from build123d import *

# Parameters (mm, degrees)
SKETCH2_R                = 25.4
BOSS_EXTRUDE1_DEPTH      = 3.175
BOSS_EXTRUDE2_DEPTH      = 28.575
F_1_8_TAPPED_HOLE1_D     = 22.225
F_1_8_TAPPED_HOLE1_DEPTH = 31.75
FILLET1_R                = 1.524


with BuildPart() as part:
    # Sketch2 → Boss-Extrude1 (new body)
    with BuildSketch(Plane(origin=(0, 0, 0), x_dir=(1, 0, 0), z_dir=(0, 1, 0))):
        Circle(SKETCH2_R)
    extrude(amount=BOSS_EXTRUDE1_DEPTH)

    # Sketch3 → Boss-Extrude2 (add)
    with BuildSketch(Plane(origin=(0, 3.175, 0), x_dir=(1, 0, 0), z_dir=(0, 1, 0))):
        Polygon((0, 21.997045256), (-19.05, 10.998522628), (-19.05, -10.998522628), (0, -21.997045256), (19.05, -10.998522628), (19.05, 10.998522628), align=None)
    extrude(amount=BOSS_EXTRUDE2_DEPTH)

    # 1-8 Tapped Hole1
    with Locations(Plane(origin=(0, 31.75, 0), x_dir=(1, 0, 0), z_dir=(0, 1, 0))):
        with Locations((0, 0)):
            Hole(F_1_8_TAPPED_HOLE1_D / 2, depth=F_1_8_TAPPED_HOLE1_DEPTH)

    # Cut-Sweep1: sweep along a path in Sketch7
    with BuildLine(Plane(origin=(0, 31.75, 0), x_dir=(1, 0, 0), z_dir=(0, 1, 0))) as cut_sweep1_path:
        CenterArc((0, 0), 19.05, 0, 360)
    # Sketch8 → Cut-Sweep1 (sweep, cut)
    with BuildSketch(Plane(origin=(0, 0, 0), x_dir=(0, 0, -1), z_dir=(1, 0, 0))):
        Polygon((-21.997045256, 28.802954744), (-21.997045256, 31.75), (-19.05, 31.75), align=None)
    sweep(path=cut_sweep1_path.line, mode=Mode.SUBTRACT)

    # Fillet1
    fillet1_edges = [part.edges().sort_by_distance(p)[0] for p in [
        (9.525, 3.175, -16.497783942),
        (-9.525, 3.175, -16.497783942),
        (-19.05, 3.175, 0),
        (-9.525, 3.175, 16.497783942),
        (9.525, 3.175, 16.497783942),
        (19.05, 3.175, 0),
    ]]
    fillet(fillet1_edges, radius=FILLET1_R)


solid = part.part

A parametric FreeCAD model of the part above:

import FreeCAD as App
import Part
import Sketcher
from FreeCAD import Vector
Q = App.Units.Quantity


def edges_at(feature, points):
    """Names of the edges that pass closest to the given points."""
    edges = feature.Shape.Edges
    near = lambda p: min(range(len(edges)), key=lambda i: edges[i].distToShape(Part.Vertex(*p))[0])
    return sorted({f"Edge{near(p) + 1}" for p in points})

doc = App.newDocument("Part")
params = doc.addObject("Spreadsheet::Sheet", "Params")
for row, (alias, value) in enumerate([
    ("sketch1_diameter", "2 in"),
    ("pad1_length", "0.125 in"),
    ("pad2_length", "1.125 in"),
    ("sketch3_diameter", "0.875 in"),
    ("hole_diameter", "0.875 in"),
    ("hole_depth", "1.25 in"),
    ("sketch5_diameter", "1.5 in"),
    ("fillet_radius", "0.06 in"),
], start=1):
    params.set(f"A{row}", alias)
    params.set(f"B{row}", "=" + value)
    params.setAlias(f"B{row}", alias)

body = doc.addObject("PartDesign::Body", "Body")

# Sketch on XZ plane
sketch1 = body.newObject("Sketcher::SketchObject", "Sketch")
sketch1.AttachmentSupport = (doc.getObject("XZ_Plane"), [""])
sketch1.MapMode = "FlatFace"
sketch1.addGeometry(Part.Circle(Vector(0, 0, 0), Vector(0, 0, 1), 25), False)
sketch1.addConstraint([
    Sketcher.Constraint("Coincident", 0, 3, -1, 1),
    Sketcher.Constraint("Diameter", 0, Q("2 in")),
])
sketch1.setExpression("Constraints[1]", "Params.sketch1_diameter")
pad1 = body.newObject("PartDesign::Pad", "Pad")
pad1.Profile = sketch1
pad1.setExpression("Length", "Params.pad1_length")
pad1.Reversed = True

# Sketch on XZ plane
sketch2 = body.newObject("Sketcher::SketchObject", "Sketch001")
sketch2.AttachmentSupport = (doc.getObject("XZ_Plane"), [""])
sketch2.MapMode = "FlatFace"
sketch2.AttachmentOffset = App.Placement(Vector(0, 0, -0.125 * 25.4), App.Rotation())
sketch2.addGeometry([
    Part.LineSegment(Vector(0, -22, 0), Vector(-19, -11, 0)),  # 0
    Part.LineSegment(Vector(-19, -11, 0), Vector(-19, 11, 0)),  # 1
    Part.LineSegment(Vector(-19, 11, 0), Vector(0, 22, 0)),  # 2
    Part.LineSegment(Vector(0, 22, 0), Vector(19, 11, 0)),  # 3
    Part.LineSegment(Vector(19, 11, 0), Vector(19, -11, 0)),  # 4
    Part.LineSegment(Vector(19, -11, 0), Vector(0, -22, 0)),  # 5
], False)
sketch2.addConstraint([
    Sketcher.Constraint("Coincident", 0, 2, 1, 1),
    Sketcher.Constraint("Coincident", 1, 2, 2, 1),
    Sketcher.Constraint("Coincident", 2, 2, 3, 1),
    Sketcher.Constraint("Coincident", 3, 2, 4, 1),
    Sketcher.Constraint("Coincident", 4, 2, 5, 1),
    Sketcher.Constraint("Coincident", 5, 2, 0, 1),
    Sketcher.Constraint("Vertical", 1),
    Sketcher.Constraint("Vertical", 4),
    Sketcher.Constraint("Symmetric", 0, 2, 3, 2, -1, 1),
    Sketcher.Constraint("Symmetric", 2, 2, 5, 2, -1, 1),
    Sketcher.Constraint("PointOnObject", 2, 2, -2),
    Sketcher.Constraint("Parallel", 2, 5),
    Sketcher.Constraint("Horizontal", 1, 2, 3, 2),
    Sketcher.Constraint("Angle", 0, Q("150 deg")),
    Sketcher.Constraint("DistanceX", 1, 2, 3, 2, Q("1.5 in")),
    Sketcher.Constraint("DistanceY", 1, 1, 1, 2, Q("21.997045 mm")),
])
pad2 = body.newObject("PartDesign::Pad", "Pad001")
pad2.Profile = sketch2
pad2.setExpression("Length", "Params.pad2_length")
pad2.Reversed = True

# Sketch on XZ plane
sketch3 = body.newObject("Sketcher::SketchObject", "Sketch002")
sketch3.AttachmentSupport = (doc.getObject("XZ_Plane"), [""])
sketch3.MapMode = "FlatFace"
sketch3.AttachmentOffset = App.Placement(Vector(0, 0, -1.25 * 25.4), App.Rotation())
sketch3.addGeometry(Part.Circle(Vector(0, 0, 0), Vector(0, 0, 1), 11), False)
sketch3.addConstraint([
    Sketcher.Constraint("Coincident", 0, 3, -1, 1),
    Sketcher.Constraint("Diameter", 0, Q("0.875 in")),
])
sketch3.setExpression("Constraints[1]", "Params.sketch3_diameter")
doc.recompute()
hole = body.newObject("PartDesign::Hole", "Hole")
hole.Profile = sketch3
hole.ThreadType = "None"
hole.setExpression("Diameter", "Params.hole_diameter")
hole.DepthType = "Dimension"
hole.setExpression("Depth", "Params.hole_depth")
hole.DrillPoint = "Flat"
hole.Reversed = True

# Sketch on YZ plane
sketch4 = body.newObject("Sketcher::SketchObject", "Sketch003")
sketch4.AttachmentSupport = (doc.getObject("YZ_Plane"), [""])
sketch4.MapMode = "FlatFace"
sketch4.addGeometry([
    Part.LineSegment(Vector(31.8, 22, 0), Vector(28.8, 22, 0)),
    Part.LineSegment(Vector(28.8, 22, 0), Vector(31.8, 19.1, 0)),
    Part.LineSegment(Vector(31.8, 19.1, 0), Vector(31.8, 22, 0)),
], False)
sketch4.addConstraint([
    Sketcher.Constraint("Coincident", 0, 2, 1, 1),
    Sketcher.Constraint("Coincident", 1, 2, 2, 1),
    Sketcher.Constraint("Coincident", 2, 2, 0, 1),
    Sketcher.Constraint("Horizontal", 0),
    Sketcher.Constraint("Vertical", 2),
    Sketcher.Constraint("Equal", 0, 2),
    Sketcher.Constraint("DistanceX", -1, 1, 1, 2, Q("1.25 in")),
    Sketcher.Constraint("DistanceY", -1, 1, 1, 2, Q("0.75 in")),
    Sketcher.Constraint("Distance", 1, Q("4.167751 mm")),
])

# Sketch on XZ plane
sketch5 = body.newObject("Sketcher::SketchObject", "Sketch004")
sketch5.AttachmentSupport = (doc.getObject("XZ_Plane"), [""])
sketch5.MapMode = "FlatFace"
sketch5.AttachmentOffset = App.Placement(Vector(0, 0, -1.25 * 25.4), App.Rotation())
sketch5.addGeometry(Part.Circle(Vector(0, 0, 0), Vector(0, 0, 1), 19), False)
sketch5.addConstraint([
    Sketcher.Constraint("Coincident", 0, 3, -1, 1),
    Sketcher.Constraint("Diameter", 0, Q("1.5 in")),
])
sketch5.setExpression("Constraints[1]", "Params.sketch5_diameter")
doc.recompute()

subtractivepipe = body.newObject("PartDesign::SubtractivePipe", "SubtractivePipe")
subtractivepipe.Profile = sketch4
subtractivepipe.Spine = (sketch5, ["Edge1"])
doc.recompute()

fillet = body.newObject("PartDesign::Fillet", "Fillet")
fillet.Base = (subtractivepipe, edges_at(subtractivepipe, [
    (9.525, 3.175, -16.498),
    (-9.525, 3.175, -16.498),
    (-19.05, 3.175, 0),
    (-9.525, 3.175, 16.498),
    (9.525, 3.175, 16.498),
    (19.05, 3.175, 0),
]))
fillet.setExpression("Radius", "Params.fillet_radius")

doc.recompute()
